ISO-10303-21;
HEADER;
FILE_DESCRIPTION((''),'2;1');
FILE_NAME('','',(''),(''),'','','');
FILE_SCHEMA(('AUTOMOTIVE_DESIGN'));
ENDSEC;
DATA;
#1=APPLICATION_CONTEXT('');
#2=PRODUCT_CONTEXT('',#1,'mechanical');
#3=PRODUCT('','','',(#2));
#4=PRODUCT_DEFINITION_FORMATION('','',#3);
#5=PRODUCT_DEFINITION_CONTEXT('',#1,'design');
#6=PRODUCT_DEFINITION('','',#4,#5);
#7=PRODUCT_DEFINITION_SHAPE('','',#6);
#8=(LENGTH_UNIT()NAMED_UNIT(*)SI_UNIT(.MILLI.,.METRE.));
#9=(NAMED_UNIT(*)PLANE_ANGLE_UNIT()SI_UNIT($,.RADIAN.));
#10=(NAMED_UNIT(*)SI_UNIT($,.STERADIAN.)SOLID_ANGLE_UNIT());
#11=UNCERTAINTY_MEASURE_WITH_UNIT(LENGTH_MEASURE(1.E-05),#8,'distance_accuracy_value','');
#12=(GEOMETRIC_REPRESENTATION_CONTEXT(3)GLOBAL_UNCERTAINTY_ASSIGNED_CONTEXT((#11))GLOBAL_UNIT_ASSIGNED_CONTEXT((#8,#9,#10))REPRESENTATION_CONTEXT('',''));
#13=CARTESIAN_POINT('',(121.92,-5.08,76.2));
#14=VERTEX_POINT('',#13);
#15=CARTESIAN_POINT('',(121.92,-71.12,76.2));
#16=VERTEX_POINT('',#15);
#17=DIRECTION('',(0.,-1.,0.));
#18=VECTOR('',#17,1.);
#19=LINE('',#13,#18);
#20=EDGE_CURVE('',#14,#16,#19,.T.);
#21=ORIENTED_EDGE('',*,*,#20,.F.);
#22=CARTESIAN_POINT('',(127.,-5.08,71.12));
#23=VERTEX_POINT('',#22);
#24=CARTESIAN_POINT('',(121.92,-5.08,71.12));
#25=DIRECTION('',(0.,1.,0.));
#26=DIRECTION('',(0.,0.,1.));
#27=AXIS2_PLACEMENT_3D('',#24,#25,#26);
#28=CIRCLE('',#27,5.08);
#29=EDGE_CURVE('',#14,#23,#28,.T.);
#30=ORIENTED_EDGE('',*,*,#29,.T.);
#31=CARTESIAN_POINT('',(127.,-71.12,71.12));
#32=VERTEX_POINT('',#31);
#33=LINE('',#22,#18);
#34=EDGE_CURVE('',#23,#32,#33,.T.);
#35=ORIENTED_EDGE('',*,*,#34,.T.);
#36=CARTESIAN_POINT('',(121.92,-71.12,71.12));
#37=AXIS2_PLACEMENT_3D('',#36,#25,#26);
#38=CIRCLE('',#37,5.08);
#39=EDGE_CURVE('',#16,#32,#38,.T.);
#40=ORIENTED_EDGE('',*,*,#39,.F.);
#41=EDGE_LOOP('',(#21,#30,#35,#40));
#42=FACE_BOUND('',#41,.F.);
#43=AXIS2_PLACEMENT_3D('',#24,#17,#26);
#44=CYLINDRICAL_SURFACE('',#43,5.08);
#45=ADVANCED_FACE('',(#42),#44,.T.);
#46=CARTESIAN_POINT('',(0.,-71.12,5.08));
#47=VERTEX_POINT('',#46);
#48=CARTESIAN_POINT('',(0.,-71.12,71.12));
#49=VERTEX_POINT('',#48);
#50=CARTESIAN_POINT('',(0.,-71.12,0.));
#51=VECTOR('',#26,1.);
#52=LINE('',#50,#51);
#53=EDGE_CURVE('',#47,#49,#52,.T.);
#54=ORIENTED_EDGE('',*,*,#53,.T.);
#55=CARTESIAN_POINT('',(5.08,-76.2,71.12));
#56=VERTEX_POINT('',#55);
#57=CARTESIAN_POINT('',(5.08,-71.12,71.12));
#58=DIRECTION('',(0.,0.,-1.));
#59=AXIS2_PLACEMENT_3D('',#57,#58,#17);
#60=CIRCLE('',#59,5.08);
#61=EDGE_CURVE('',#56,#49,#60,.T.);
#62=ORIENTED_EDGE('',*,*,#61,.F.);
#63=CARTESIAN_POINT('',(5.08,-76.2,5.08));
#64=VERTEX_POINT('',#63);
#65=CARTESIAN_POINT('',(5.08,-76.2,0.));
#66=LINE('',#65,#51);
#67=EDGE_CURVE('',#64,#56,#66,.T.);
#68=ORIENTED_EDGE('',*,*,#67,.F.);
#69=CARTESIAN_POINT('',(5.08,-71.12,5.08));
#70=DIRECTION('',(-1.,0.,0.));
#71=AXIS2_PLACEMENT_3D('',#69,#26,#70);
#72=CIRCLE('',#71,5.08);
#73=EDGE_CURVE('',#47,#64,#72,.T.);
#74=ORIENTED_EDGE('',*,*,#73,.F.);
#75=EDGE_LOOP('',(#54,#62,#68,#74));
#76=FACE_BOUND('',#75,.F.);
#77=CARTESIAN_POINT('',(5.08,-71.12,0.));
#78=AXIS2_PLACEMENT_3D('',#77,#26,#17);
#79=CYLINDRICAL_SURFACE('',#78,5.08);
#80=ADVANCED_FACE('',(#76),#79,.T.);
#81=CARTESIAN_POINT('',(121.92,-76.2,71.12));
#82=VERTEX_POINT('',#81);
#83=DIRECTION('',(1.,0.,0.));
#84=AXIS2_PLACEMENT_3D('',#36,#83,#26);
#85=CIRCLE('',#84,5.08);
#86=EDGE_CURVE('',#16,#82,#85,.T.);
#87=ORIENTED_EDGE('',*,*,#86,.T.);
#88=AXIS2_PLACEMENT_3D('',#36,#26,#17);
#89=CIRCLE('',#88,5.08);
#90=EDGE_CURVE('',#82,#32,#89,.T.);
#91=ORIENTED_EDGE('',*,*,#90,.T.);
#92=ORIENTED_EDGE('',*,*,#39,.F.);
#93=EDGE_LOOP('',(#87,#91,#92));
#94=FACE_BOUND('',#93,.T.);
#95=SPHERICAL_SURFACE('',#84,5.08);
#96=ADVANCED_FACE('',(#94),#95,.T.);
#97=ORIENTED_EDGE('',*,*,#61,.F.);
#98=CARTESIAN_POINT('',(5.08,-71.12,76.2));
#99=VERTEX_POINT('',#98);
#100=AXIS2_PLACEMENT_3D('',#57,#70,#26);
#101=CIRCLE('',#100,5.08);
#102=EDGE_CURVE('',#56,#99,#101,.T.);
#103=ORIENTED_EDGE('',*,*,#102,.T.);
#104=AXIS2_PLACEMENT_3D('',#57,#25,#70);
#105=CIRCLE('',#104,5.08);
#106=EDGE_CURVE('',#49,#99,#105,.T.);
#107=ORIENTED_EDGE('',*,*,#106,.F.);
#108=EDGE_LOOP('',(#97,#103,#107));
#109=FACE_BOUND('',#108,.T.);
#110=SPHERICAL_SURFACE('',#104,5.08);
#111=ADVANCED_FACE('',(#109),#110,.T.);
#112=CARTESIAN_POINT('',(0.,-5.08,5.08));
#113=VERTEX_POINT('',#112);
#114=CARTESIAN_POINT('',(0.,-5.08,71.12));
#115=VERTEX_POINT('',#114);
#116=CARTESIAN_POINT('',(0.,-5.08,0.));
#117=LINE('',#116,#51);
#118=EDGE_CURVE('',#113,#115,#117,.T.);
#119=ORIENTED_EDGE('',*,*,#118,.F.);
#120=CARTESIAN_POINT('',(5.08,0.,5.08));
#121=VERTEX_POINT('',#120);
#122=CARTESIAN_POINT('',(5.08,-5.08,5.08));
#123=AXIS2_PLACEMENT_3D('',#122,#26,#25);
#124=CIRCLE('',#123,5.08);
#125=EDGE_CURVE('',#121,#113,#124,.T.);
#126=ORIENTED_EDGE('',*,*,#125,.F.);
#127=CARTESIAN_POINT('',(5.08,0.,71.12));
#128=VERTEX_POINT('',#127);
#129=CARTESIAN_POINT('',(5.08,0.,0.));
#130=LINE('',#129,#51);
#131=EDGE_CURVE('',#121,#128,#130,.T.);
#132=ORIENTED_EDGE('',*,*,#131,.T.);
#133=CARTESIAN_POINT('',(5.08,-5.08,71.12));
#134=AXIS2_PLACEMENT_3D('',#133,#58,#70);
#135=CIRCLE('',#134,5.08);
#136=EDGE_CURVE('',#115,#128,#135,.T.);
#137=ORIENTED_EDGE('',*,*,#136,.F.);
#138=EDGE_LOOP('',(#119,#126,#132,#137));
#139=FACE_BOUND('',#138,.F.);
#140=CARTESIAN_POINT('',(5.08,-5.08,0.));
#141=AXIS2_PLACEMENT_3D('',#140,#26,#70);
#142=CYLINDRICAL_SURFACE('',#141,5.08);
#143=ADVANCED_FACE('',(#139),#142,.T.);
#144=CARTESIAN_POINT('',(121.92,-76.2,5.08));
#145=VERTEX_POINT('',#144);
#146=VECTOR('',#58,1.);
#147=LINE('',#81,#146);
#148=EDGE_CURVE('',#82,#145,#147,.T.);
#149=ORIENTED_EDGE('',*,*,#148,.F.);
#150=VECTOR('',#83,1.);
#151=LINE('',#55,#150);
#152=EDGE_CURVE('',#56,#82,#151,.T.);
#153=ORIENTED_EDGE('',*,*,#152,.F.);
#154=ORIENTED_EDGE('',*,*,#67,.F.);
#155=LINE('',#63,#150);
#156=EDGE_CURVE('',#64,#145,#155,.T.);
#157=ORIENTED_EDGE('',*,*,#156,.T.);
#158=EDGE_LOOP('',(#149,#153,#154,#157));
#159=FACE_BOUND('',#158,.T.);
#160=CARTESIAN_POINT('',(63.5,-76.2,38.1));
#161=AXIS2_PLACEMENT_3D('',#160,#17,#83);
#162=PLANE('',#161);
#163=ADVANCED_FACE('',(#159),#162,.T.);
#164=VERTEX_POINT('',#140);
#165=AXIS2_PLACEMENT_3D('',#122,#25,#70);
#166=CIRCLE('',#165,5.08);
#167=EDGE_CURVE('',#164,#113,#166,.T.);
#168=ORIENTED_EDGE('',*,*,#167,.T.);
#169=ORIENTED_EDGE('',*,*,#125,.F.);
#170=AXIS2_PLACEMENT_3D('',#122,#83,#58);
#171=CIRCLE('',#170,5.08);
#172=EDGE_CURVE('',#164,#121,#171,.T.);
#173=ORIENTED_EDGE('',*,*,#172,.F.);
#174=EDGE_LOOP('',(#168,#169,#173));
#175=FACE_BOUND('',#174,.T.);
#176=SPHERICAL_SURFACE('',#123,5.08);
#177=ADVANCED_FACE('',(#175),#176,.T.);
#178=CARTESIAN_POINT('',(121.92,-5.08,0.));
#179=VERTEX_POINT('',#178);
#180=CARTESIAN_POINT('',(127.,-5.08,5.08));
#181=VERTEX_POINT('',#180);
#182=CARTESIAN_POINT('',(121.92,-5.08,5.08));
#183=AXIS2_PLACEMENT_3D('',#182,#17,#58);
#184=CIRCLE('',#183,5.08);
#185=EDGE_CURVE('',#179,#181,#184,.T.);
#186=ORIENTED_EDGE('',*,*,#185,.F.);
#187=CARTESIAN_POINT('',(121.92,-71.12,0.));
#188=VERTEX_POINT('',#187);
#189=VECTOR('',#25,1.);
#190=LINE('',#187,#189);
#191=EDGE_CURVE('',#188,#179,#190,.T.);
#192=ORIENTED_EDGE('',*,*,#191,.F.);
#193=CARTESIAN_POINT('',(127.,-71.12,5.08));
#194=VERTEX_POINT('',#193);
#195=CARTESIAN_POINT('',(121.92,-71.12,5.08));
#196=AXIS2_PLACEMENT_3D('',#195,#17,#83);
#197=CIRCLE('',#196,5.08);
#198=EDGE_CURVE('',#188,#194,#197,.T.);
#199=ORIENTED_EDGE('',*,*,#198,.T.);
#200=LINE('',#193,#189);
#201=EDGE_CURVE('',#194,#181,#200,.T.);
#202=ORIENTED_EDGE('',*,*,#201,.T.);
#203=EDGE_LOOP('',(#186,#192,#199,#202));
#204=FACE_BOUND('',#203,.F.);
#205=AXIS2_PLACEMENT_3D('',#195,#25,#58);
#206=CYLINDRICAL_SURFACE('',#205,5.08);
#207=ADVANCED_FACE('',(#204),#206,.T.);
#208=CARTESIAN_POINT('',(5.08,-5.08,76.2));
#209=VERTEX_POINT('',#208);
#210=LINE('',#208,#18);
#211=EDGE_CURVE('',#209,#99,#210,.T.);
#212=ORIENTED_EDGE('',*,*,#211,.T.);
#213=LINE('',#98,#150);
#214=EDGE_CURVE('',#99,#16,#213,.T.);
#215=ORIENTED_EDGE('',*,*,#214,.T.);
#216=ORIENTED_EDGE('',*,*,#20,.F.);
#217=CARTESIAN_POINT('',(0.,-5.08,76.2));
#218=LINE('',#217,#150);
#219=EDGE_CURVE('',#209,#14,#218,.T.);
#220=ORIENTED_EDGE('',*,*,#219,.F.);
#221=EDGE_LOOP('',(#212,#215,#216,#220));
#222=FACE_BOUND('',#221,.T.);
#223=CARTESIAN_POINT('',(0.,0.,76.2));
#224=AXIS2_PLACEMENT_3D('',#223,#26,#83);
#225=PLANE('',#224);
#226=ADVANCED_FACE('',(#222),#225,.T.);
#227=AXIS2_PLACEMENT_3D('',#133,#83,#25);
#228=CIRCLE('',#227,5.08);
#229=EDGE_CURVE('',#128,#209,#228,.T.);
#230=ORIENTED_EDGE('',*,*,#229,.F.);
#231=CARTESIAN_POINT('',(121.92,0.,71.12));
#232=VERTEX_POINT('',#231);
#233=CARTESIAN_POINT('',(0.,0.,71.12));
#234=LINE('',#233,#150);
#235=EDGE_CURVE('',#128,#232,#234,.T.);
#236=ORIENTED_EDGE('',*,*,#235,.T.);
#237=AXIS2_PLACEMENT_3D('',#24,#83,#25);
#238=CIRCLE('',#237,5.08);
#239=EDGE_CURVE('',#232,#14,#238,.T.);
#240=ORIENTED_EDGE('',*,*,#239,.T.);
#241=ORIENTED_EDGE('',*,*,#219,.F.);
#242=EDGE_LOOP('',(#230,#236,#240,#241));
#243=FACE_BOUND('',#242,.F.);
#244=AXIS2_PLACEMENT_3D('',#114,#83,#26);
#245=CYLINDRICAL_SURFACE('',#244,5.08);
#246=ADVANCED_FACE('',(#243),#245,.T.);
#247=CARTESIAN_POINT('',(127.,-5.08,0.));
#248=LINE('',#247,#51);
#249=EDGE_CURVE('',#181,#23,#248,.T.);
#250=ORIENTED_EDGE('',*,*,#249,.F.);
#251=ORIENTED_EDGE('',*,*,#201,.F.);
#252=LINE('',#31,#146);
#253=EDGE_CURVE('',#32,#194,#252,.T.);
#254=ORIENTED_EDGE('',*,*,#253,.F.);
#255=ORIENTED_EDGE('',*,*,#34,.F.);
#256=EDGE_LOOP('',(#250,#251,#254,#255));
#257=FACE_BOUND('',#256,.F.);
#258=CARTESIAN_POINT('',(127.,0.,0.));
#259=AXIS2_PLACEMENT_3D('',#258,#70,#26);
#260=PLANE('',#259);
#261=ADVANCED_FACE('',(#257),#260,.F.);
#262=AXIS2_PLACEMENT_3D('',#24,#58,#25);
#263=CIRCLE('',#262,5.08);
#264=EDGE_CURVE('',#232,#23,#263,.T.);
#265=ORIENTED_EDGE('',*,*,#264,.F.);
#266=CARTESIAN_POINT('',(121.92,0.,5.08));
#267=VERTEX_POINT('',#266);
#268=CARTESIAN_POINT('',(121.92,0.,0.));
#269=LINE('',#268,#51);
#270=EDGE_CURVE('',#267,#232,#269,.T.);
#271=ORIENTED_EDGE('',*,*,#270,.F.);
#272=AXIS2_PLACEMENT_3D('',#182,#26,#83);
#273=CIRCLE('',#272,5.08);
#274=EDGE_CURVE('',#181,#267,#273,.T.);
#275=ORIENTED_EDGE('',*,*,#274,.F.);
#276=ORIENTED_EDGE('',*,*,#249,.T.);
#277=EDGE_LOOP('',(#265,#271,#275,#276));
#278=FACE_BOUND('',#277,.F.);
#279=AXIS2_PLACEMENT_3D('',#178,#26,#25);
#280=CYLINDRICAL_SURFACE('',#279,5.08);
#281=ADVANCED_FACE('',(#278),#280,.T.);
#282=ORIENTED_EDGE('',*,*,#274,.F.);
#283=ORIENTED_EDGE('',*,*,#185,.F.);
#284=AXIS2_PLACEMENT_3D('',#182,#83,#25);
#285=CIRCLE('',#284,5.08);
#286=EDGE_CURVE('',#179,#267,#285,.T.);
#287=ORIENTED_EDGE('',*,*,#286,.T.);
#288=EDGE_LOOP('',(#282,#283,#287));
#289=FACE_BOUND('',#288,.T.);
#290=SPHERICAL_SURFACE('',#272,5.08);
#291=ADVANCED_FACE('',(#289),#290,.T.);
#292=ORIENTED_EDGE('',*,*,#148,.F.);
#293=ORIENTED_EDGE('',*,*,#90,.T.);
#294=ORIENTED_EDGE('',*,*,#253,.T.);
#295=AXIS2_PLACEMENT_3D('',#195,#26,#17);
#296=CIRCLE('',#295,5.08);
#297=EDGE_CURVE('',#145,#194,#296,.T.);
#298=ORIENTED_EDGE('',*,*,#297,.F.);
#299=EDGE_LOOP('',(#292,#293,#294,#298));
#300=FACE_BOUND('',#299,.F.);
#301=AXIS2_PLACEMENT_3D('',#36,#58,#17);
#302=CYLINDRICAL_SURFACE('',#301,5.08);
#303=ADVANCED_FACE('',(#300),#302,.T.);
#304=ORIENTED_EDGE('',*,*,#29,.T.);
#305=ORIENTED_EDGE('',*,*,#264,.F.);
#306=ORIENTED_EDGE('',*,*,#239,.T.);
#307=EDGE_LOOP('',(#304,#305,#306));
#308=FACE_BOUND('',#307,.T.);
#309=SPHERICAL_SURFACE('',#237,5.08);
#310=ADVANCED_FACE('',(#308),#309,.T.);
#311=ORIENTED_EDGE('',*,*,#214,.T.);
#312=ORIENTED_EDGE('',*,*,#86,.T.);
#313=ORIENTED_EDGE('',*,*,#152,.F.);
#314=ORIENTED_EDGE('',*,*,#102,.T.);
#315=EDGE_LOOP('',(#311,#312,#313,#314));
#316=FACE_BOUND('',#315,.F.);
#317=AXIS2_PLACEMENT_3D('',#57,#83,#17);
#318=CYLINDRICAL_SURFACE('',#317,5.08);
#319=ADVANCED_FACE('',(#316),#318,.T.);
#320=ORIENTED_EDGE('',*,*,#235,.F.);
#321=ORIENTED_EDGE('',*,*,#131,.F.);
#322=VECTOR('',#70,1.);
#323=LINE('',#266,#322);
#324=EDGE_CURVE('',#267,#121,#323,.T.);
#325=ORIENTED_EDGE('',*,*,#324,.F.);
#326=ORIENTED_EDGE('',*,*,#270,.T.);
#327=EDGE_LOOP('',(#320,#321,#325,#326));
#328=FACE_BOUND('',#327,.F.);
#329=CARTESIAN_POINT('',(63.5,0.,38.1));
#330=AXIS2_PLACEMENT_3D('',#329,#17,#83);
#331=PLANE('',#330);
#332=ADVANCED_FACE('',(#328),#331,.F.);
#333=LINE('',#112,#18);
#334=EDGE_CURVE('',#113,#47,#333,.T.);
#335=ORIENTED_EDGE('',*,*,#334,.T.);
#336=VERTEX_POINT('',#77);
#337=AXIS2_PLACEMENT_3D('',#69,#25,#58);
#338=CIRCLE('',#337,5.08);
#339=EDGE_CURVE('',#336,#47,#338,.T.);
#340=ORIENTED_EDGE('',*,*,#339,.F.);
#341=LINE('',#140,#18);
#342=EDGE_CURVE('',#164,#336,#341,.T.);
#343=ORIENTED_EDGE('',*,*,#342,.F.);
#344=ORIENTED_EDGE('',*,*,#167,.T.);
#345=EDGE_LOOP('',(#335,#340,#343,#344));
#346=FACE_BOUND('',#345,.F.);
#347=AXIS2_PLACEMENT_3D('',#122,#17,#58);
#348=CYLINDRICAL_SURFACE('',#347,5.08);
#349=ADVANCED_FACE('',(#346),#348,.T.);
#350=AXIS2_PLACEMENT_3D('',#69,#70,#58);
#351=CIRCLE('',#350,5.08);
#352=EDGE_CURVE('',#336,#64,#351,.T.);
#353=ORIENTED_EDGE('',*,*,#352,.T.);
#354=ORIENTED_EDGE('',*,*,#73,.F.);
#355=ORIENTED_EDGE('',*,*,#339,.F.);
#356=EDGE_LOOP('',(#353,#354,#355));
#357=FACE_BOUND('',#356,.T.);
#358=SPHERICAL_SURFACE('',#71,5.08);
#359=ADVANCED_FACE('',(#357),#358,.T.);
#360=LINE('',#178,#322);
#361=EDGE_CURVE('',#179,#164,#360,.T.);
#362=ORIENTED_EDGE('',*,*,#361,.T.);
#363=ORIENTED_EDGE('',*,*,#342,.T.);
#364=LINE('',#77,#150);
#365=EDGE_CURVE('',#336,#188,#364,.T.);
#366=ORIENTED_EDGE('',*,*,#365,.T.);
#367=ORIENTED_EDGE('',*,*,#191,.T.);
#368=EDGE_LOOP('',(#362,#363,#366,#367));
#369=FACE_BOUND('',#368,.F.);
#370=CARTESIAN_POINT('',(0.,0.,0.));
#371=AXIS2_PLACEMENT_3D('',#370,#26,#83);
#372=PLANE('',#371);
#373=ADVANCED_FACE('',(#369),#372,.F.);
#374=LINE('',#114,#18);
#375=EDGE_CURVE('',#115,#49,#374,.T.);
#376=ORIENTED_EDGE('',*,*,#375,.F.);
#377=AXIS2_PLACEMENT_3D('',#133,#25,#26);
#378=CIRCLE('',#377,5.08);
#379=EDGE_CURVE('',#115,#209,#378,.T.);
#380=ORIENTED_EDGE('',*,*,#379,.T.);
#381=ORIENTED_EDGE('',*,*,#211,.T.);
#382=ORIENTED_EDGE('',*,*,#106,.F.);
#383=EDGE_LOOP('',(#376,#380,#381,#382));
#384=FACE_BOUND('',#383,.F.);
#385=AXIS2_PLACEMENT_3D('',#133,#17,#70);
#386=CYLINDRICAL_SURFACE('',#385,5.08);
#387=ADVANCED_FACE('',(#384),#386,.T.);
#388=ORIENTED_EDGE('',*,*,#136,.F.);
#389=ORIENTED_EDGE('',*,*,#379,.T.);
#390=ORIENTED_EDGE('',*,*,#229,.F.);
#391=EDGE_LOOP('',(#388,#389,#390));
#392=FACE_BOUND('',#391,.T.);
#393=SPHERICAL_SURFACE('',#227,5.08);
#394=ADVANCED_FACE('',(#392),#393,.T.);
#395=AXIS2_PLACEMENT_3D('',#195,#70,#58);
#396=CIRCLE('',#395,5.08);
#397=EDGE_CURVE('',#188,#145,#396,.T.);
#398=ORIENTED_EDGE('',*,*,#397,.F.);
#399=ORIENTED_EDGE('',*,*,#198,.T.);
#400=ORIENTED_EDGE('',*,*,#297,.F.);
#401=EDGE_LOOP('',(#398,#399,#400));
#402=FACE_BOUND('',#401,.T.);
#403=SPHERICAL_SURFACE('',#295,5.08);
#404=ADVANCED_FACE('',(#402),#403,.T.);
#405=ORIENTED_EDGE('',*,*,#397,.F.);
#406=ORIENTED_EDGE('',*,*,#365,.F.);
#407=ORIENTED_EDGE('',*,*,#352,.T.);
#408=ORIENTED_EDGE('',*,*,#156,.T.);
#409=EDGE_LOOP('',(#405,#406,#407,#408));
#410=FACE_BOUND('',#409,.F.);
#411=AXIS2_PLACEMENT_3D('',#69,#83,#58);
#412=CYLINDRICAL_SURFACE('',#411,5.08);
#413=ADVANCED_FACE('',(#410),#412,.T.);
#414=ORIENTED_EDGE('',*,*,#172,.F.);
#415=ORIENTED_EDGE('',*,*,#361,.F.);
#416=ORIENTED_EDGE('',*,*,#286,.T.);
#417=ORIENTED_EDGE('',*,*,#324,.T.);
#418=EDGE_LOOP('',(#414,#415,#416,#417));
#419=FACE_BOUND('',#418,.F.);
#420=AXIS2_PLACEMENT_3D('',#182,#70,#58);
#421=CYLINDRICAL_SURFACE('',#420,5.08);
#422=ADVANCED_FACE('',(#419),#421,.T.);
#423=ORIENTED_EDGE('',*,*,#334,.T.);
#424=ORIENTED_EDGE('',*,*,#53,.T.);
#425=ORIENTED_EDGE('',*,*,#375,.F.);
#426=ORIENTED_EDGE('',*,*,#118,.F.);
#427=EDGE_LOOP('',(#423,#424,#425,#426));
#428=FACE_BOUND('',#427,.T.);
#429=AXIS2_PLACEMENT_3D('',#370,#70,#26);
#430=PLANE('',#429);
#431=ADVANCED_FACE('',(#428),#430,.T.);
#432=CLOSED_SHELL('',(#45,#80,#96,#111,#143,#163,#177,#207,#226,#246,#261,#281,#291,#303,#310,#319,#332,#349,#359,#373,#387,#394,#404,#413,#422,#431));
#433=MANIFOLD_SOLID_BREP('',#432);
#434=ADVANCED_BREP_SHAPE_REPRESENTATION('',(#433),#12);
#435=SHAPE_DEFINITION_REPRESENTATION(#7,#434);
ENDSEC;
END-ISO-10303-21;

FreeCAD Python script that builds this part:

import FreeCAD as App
import Part
import Sketcher
from FreeCAD import Vector
Q = App.Units.Quantity


def edges_at(feature, points):
    """Names of the edges that pass closest to the given points."""
    edges = feature.Shape.Edges
    near = lambda p: min(range(len(edges)), key=lambda i: edges[i].distToShape(Part.Vertex(*p))[0])
    return sorted({f"Edge{near(p) + 1}" for p in points})


def add_polygon(sketch, points):
    """Adds a closed chain of lines whose ends are joined by coincident constraints."""
    first, n = sketch.GeometryCount, len(points)
    for a, b in zip(points, points[1:] + points[:1]):
        sketch.addGeometry(Part.LineSegment(App.Vector(*a, 0), App.Vector(*b, 0)), False)
    for i in range(n):
        sketch.addConstraint(Sketcher.Constraint("Coincident", first + i, 2, first + (i + 1) % n, 1))

doc = App.newDocument("Part")
params = doc.addObject("Spreadsheet::Sheet", "Params")
for row, (alias, value) in enumerate([
    ("sketch1_width", "5 in"),
    ("sketch1_height", "3 in"),
    ("pad1_length", "3 in"),
    ("fillet_radius", "0.2 in"),
    ("fillet2_radius", "0.2 in"),
    ("fillet3_radius", "0.2 in"),
    ("fillet4_radius", "0.2 in"),
    ("fillet5_radius", "0.2 in"),
], start=1):
    params.set(f"A{row}", alias)
    params.set(f"B{row}", "=" + value)
    params.setAlias(f"B{row}", alias)

body = doc.addObject("PartDesign::Body", "Body")

# Sketch on XZ plane
sketch1 = body.newObject("Sketcher::SketchObject", "Sketch")
sketch1.AttachmentSupport = (doc.getObject("XZ_Plane"), [""])
sketch1.MapMode = "FlatFace"
add_polygon(sketch1, [(0, 76), (0, 0), (127, 0), (127, 76)])  # lines 0-3
sketch1.addConstraint([
    Sketcher.Constraint("Vertical", 0),
    Sketcher.Constraint("Horizontal", 1),
    Sketcher.Constraint("Vertical", 2),
    Sketcher.Constraint("Horizontal", 3),
    Sketcher.Constraint("Coincident", 0, 2, -1, 1),
    Sketcher.Constraint("DistanceX", 1, 1, 1, 2, Q("5 in")),
    Sketcher.Constraint("DistanceY", 0, 2, 0, 1, Q("3 in")),
])
sketch1.setExpression("Constraints[9]", "Params.sketch1_width")
sketch1.setExpression("Constraints[10]", "Params.sketch1_height")
pad1 = body.newObject("PartDesign::Pad", "Pad")
pad1.Profile = sketch1
pad1.setExpression("Length", "Params.pad1_length")
doc.recompute()

fillet = body.newObject("PartDesign::Fillet", "Fillet")
fillet.Base = (pad1, edges_at(pad1, [(63.5, 0, 76.2)]))
fillet.setExpression("Radius", "Params.fillet_radius")
doc.recompute()

fillet2 = body.newObject("PartDesign::Fillet", "Fillet001")
fillet2.Base = (fillet, edges_at(fillet, [(0, -40.64, 76.2)]))
fillet2.setExpression("Radius", "Params.fillet2_radius")
doc.recompute()

fillet3 = body.newObject("PartDesign::Fillet", "Fillet002")
fillet3.Base = (fillet2, edges_at(fillet2, [(66.04, -76.2, 76.2)]))
fillet3.setExpression("Radius", "Params.fillet3_radius")
doc.recompute()

fillet4 = body.newObject("PartDesign::Fillet", "Fillet003")
fillet4.Base = (fillet3, edges_at(fillet3, [(127, -38.1, 76.2)]))
fillet4.setExpression("Radius", "Params.fillet4_radius")
doc.recompute()

fillet5 = body.newObject("PartDesign::Fillet", "Fillet004")
fillet5.Base = (fillet4, edges_at(fillet4, [(63.5, -76.2, 0)]))
fillet5.setExpression("Radius", "Params.fillet5_radius")

doc.recompute()
